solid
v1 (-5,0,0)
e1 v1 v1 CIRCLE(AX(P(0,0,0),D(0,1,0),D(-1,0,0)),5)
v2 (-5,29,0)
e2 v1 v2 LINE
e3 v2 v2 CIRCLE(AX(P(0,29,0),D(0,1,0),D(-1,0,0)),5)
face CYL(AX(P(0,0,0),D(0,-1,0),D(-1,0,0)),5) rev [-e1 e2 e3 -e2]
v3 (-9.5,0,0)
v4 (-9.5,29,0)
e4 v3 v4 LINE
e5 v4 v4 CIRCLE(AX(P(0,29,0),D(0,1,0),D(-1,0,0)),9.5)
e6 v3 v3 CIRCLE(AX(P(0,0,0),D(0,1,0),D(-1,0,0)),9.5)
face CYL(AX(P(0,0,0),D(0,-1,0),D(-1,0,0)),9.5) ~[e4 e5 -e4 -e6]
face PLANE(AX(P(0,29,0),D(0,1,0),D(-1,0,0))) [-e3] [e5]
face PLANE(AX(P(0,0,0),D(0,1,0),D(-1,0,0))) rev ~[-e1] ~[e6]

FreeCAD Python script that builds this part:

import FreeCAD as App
import Part
import Sketcher

V = App.Vector
Q = App.Units.Quantity

doc = App.newDocument("Part")
body = doc.addObject("PartDesign::Body", "Body")

sketch1 = doc.addObject("Sketcher::SketchObject", "Sketch")
body.addObject(sketch1)
sketch1.AttachmentSupport = (doc.XZ_Plane, [""])
sketch1.MapMode = "FlatFace"
sketch1.addGeometry([
    Part.Circle(V(0, 0, 0), V(0, 0, 1), 10),
    Part.Circle(V(0, 0, 0), V(0, 0, 1), 5),
], False)
sketch1.addConstraint([
    Sketcher.Constraint("Coincident", 0, 3, -1, 1),
    Sketcher.Constraint("Coincident", 1, 3, -1, 1),
    Sketcher.Constraint("Diameter", 0, Q("19 mm")),
    Sketcher.Constraint("Diameter", 1, Q("10 mm")),
])
pad1 = doc.addObject("PartDesign::Pad", "Pad")
body.addObject(pad1)
pad1.Profile = sketch1
pad1.Length = 29
pad1.Reversed = True

doc.recompute()
